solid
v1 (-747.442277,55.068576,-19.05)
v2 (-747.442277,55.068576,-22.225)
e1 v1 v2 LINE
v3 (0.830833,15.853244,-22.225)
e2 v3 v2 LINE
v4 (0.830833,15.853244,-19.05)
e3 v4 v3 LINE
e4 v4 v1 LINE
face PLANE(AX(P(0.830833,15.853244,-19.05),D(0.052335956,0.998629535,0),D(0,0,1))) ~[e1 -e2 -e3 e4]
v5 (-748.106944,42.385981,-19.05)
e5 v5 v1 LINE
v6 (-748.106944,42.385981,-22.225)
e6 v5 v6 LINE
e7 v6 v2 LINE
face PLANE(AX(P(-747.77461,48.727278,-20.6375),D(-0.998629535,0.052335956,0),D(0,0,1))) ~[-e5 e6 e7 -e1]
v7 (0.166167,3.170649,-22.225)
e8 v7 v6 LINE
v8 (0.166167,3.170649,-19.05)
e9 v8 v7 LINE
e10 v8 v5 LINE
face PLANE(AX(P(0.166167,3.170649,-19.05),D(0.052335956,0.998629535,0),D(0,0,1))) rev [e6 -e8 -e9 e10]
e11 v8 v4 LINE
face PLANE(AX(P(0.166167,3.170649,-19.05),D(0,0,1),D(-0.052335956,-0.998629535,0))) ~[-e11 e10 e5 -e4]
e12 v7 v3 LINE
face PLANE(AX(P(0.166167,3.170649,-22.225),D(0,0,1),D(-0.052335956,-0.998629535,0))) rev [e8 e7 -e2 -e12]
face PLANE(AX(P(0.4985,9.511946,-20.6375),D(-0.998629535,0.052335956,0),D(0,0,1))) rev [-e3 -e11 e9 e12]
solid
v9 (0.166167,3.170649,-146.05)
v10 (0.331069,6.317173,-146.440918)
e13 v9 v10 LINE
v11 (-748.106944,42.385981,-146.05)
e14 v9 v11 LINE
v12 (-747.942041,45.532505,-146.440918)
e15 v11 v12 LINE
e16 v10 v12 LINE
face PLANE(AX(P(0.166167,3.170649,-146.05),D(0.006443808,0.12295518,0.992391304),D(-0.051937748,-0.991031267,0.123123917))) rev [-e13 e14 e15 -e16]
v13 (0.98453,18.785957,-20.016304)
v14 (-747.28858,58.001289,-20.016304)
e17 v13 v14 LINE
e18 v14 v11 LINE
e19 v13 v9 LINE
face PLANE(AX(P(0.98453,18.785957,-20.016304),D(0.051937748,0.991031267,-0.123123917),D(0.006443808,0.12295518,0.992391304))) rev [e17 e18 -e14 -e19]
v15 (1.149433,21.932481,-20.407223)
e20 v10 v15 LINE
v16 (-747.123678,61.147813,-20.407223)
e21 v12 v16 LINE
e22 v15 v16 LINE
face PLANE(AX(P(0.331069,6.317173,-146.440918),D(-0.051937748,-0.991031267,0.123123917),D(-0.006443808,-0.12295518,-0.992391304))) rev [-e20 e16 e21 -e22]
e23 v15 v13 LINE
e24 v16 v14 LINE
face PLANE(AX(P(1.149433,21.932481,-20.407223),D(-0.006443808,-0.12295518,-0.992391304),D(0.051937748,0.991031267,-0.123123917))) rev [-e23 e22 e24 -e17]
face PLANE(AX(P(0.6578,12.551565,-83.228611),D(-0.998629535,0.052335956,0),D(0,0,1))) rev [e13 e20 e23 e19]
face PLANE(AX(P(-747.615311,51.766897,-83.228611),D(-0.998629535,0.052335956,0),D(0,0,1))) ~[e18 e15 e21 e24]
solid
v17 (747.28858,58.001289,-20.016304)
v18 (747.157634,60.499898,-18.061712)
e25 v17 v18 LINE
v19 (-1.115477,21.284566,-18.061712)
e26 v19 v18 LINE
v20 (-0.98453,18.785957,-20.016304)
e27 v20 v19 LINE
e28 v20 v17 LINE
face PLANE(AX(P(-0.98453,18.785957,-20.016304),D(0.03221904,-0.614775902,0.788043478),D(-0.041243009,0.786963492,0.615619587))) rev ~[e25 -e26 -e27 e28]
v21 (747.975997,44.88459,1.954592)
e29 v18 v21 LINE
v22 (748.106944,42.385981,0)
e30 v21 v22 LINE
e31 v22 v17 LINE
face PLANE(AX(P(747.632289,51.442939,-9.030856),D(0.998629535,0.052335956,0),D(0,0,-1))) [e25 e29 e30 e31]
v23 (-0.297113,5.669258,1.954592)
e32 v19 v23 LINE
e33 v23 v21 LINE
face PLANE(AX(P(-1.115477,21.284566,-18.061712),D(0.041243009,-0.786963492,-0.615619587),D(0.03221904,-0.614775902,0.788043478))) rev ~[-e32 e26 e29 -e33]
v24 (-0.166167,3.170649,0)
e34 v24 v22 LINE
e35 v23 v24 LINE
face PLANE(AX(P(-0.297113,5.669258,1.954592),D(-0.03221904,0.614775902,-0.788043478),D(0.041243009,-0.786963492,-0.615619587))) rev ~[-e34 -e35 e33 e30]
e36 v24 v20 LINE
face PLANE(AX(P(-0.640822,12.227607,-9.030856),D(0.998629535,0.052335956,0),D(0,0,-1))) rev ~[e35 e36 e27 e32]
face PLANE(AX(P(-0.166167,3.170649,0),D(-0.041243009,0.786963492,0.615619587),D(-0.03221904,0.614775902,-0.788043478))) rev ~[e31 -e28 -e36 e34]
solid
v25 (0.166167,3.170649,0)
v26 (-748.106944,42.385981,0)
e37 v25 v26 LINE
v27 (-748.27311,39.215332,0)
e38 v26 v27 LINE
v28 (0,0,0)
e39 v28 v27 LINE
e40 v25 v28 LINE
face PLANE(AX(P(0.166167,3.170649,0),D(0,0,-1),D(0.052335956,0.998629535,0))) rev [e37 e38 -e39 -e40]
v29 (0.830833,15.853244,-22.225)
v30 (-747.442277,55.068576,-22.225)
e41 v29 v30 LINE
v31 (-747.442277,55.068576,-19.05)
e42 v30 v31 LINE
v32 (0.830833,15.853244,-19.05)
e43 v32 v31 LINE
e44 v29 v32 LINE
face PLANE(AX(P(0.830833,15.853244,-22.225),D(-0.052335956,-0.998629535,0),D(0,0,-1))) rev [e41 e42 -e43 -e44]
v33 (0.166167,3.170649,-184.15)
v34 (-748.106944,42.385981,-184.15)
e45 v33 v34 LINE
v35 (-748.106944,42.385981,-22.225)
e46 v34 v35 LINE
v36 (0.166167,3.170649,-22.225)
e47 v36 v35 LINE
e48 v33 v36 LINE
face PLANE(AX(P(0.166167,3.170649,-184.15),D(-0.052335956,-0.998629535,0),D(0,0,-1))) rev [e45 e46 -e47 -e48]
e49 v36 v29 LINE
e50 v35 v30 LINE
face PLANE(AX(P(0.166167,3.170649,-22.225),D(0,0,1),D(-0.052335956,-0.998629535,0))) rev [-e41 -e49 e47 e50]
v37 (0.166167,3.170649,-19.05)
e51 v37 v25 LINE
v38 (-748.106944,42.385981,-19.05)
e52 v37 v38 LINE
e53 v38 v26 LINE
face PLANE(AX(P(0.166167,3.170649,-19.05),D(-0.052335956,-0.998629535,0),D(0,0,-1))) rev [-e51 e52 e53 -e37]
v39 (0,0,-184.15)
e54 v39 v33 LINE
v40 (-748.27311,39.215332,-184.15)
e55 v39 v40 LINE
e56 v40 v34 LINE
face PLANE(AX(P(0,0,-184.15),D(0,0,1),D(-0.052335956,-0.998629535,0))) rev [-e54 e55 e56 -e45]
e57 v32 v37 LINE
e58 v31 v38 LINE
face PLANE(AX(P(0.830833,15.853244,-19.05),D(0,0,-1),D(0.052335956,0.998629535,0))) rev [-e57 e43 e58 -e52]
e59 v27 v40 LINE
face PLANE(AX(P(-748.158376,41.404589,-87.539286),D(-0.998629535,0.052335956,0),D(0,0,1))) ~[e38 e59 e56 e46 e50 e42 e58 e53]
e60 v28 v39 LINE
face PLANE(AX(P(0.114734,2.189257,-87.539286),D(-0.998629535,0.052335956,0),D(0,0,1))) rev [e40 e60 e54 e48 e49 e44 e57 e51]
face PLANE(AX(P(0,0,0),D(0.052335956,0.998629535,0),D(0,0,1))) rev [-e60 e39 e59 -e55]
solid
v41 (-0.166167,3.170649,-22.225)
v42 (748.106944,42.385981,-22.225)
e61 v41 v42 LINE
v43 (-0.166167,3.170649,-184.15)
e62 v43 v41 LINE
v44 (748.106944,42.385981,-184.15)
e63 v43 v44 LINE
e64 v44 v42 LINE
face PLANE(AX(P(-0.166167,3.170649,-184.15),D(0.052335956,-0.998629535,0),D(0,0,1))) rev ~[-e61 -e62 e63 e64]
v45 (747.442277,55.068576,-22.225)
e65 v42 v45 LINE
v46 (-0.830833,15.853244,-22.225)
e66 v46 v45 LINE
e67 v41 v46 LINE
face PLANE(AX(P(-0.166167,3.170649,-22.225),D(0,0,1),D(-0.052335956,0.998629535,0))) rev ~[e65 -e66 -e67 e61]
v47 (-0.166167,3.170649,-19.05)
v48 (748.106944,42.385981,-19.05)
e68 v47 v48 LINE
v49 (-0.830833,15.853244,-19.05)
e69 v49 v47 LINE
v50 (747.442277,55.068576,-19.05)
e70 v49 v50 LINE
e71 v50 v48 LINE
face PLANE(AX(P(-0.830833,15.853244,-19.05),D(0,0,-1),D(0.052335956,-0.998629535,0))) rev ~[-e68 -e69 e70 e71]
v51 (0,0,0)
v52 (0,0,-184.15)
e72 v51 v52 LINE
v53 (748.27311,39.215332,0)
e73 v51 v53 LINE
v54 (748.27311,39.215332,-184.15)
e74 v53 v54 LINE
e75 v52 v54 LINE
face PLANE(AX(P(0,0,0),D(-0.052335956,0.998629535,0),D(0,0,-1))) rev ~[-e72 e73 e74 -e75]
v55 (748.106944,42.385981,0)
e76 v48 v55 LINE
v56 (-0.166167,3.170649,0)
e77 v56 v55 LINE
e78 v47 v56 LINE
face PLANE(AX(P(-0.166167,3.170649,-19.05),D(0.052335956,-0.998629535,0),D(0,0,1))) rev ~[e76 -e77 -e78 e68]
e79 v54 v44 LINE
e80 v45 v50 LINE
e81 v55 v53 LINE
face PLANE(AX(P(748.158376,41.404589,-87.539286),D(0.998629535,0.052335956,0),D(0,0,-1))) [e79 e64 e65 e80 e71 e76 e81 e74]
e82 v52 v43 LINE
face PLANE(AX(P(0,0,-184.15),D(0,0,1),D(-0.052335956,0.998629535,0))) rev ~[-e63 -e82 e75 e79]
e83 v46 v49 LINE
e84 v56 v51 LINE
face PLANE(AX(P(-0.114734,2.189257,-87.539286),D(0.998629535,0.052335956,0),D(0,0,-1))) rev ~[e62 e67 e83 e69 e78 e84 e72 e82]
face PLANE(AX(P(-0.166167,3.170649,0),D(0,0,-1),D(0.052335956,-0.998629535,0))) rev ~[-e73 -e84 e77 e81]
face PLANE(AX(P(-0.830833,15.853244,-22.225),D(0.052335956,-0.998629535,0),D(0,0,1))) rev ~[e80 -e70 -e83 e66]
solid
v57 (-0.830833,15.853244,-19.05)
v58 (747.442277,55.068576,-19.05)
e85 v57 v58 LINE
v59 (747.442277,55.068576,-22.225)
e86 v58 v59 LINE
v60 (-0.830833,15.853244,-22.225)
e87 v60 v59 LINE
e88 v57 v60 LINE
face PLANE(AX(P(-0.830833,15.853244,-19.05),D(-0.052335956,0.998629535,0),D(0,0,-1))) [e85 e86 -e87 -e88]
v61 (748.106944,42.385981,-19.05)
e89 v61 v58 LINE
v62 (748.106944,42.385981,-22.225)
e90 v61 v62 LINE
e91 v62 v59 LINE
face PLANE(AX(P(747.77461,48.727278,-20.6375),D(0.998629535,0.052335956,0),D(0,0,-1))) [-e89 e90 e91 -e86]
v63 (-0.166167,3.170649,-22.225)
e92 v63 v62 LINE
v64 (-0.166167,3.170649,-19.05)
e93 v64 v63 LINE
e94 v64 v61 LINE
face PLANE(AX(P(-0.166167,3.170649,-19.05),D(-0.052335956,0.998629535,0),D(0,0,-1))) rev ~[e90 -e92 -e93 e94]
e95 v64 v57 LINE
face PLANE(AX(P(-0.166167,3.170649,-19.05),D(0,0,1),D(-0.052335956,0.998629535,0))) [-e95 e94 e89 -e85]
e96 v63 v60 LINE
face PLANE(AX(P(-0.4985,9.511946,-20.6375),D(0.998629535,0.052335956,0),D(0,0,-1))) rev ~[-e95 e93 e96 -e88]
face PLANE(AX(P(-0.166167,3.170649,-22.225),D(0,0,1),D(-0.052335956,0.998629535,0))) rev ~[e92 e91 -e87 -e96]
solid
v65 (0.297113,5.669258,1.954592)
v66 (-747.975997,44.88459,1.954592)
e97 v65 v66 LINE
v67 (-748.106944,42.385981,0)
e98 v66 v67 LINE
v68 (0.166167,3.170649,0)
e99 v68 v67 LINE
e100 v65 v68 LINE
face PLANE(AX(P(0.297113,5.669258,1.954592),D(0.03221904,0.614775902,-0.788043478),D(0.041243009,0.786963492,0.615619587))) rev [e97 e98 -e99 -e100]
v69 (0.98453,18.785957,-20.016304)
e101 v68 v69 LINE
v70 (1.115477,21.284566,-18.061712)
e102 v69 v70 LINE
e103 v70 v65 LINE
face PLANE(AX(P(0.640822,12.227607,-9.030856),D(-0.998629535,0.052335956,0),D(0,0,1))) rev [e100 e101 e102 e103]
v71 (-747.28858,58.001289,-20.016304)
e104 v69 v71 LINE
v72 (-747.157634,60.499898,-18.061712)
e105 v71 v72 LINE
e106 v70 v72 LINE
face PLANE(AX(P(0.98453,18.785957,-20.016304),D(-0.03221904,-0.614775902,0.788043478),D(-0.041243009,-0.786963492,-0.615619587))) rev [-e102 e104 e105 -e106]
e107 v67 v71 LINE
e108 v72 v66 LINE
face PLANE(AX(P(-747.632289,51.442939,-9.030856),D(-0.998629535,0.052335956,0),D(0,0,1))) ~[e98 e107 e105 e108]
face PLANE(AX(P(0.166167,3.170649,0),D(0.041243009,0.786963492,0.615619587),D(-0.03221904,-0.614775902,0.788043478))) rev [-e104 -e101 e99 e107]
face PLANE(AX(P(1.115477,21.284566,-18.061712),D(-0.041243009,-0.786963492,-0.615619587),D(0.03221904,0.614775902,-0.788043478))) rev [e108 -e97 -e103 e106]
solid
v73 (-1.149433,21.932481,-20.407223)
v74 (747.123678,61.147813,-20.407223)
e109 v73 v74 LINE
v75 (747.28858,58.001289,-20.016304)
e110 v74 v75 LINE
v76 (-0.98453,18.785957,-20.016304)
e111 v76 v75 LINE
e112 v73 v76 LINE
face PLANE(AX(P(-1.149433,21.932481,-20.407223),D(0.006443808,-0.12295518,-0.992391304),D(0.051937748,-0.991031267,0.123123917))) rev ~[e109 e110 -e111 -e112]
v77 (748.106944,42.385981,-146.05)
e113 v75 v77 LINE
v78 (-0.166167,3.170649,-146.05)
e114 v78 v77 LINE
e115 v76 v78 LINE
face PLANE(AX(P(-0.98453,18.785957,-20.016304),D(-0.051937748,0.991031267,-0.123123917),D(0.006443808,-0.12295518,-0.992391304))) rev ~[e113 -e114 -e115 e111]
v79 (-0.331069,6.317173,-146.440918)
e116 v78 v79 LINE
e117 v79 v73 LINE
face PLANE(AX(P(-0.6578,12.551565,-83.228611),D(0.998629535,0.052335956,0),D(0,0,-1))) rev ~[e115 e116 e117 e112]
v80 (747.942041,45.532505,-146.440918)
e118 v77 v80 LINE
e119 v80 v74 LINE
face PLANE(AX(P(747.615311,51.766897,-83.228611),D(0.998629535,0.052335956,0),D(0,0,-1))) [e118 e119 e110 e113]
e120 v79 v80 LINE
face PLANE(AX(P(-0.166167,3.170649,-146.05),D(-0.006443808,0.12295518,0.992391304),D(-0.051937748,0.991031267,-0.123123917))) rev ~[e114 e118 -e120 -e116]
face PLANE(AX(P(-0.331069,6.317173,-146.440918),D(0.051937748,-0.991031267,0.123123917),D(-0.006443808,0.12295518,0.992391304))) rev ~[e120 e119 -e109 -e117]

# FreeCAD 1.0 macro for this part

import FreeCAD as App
import Part
import Sketcher

V = App.Vector
Q = App.Units.Quantity

doc = App.newDocument("Part")
body = doc.addObject("PartDesign::Body", "Body")

# Sketch on an angled plane
sketch1 = body.newObject("Sketcher::SketchObject", "Sketch")
sketch1.Placement = App.Placement(V(0, 0, 0), App.Rotation(V(0, 0, -1), V(-0.052335956, 0.998629535, 0), V(0.998629535, 0.052335956, 0), "ZXY"))
sketch1.addGeometry([
    Part.LineSegment(V(0, 3.2, 0), V(0, 0, 0)),  # 0
    Part.LineSegment(V(0, 0, 0), V(184.2, 0, 0)),  # 1
    Part.LineSegment(V(184.2, 0, 0), V(184.2, 3.2, 0)),  # 2
    Part.LineSegment(V(184.2, 3.2, 0), V(22.2, 3.2, 0)),  # 3
    Part.LineSegment(V(22.2, 3.2, 0), V(22.2, 15.9, 0)),  # 4
    Part.LineSegment(V(22.2, 15.9, 0), V(19.1, 15.9, 0)),  # 5
    Part.LineSegment(V(19.1, 15.9, 0), V(19.1, 3.2, 0)),  # 6
    Part.LineSegment(V(19.1, 3.2, 0), V(0, 3.2, 0)),  # 7
], False)
sketch1.addConstraint([
    Sketcher.Constraint("Coincident", 0, 2, 1, 1),
    Sketcher.Constraint("Coincident", 1, 2, 2, 1),
    Sketcher.Constraint("Coincident", 2, 2, 3, 1),
    Sketcher.Constraint("Coincident", 3, 2, 4, 1),
    Sketcher.Constraint("Coincident", 4, 2, 5, 1),
    Sketcher.Constraint("Coincident", 5, 2, 6, 1),
    Sketcher.Constraint("Coincident", 6, 2, 7, 1),
    Sketcher.Constraint("Coincident", 7, 2, 0, 1),
    Sketcher.Constraint("Vertical", 0),
    Sketcher.Constraint("Horizontal", 1),
    Sketcher.Constraint("Vertical", 2),
    Sketcher.Constraint("Horizontal", 3),
    Sketcher.Constraint("Vertical", 4),
    Sketcher.Constraint("Horizontal", 5),
    Sketcher.Constraint("Vertical", 6),
    Sketcher.Constraint("Horizontal", 7),
    Sketcher.Constraint("Coincident", 0, 2, -1, 1),
    Sketcher.Constraint("Horizontal", 3, 2, 6, 2),
    Sketcher.Constraint("Equal", 5, 0),
    Sketcher.Constraint("DistanceY", 4, 1, 4, 2, Q("0.5 in")),
    Sketcher.Constraint("DistanceX", 1, 1, 1, 2, Q("7.25 in")),
    Sketcher.Constraint("DistanceX", 7, 2, 7, 1, Q("0.75 in")),
    Sketcher.Constraint("DistanceX", 3, 2, 3, 1, Q("6.375 in")),
])
pad1 = body.newObject("PartDesign::Pad", "Pad")
pad1.Profile = sketch1
pad1.Length = Q("29.5 in")
body2 = doc.addObject("PartDesign::Body", "Body001")

# Sketch on an angled plane
sketch2 = body2.newObject("Sketcher::SketchObject", "Sketch001")
sketch2.Placement = App.Placement(V(0, 0, 0), App.Rotation(V(0, 0, -1), V(-0.052335956, 0.998629535, 0), V(0.998629535, 0.052335956, 0), "ZXY"))
sketch2.addGeometry([
    Part.LineSegment(V(-2, 5.7, 0), V(0, 3.2, 0)),
    Part.LineSegment(V(0, 3.2, 0), V(20, 18.8, 0)),
    Part.LineSegment(V(20, 18.8, 0), V(18.1, 21.3, 0)),
    Part.LineSegment(V(18.1, 21.3, 0), V(-2, 5.7, 0)),
], False)
sketch2.addConstraint([
    Sketcher.Constraint("Coincident", 0, 2, 1, 1),
    Sketcher.Constraint("Coincident", 1, 2, 2, 1),
    Sketcher.Constraint("Coincident", 2, 2, 3, 1),
    Sketcher.Constraint("Coincident", 3, 2, 0, 1),
    Sketcher.Constraint("PointOnObject", 0, 2, -2),
    Sketcher.Constraint("Perpendicular", 0, 1),
    Sketcher.Constraint("Perpendicular", 1, 2),
    Sketcher.Constraint("Perpendicular", 2, 3),
    Sketcher.Constraint("Distance", 1, Q("1 in")),
    Sketcher.Constraint("Distance", 0, Q("0.125 in")),
    Sketcher.Constraint("DistanceY", -1, 1, 0, 2, Q("0.125 in")),
    Sketcher.Constraint("DistanceY", 3, 2, 1, 2, Q("13.134699 mm")),
])
pad2 = body2.newObject("PartDesign::Pad", "Pad001")
pad2.Profile = sketch2
pad2.Length = Q("29.5 in")
body3 = doc.addObject("PartDesign::Body", "Body002")

# Sketch on an angled plane
sketch3 = body3.newObject("Sketcher::SketchObject", "Sketch002")
sketch3.Placement = App.Placement(V(0, 0, 0), App.Rotation(V(0, 0, -1), V(-0.052335956, 0.998629535, 0), V(0.998629535, 0.052335956, 0), "ZXY"))
sketch3.addGeometry([
    Part.LineSegment(V(20.4, 22, 0), V(20, 18.8, 0)),
    Part.LineSegment(V(20, 18.8, 0), V(146.1, 3.2, 0)),
    Part.LineSegment(V(146.1, 3.2, 0), V(146.4, 6.3, 0)),
    Part.LineSegment(V(146.4, 6.3, 0), V(20.4, 22, 0)),
], False)
sketch3.addConstraint([
    Sketcher.Constraint("Coincident", 0, 2, 1, 1),
    Sketcher.Constraint("Coincident", 1, 2, 2, 1),
    Sketcher.Constraint("Coincident", 2, 2, 3, 1),
    Sketcher.Constraint("Coincident", 3, 2, 0, 1),
    Sketcher.Constraint("Perpendicular", 0, 1),
    Sketcher.Constraint("Perpendicular", 1, 2),
    Sketcher.Constraint("Perpendicular", 2, 3),
    Sketcher.Constraint("Distance", 1, Q("5 in")),
    Sketcher.Constraint("DistanceX", -1, 1, 1, 2, Q("5.75 in")),
    Sketcher.Constraint("Distance", 0, Q("0.125 in")),
    Sketcher.Constraint("DistanceY", -1, 1, 1, 2, Q("0.125 in")),
    Sketcher.Constraint("DistanceX", -1, 1, 2, 2, Q("146.440918 mm")),
])
pad3 = body3.newObject("PartDesign::Pad", "Pad002")
pad3.Profile = sketch3
pad3.Length = Q("29.5 in")
body4 = doc.addObject("PartDesign::Body", "Body003")

# Sketch on an angled plane
sketch4 = body4.newObject("Sketcher::SketchObject", "Sketch003")
sketch4.Placement = App.Placement(V(0, 0, 0), App.Rotation(V(0, 0, -1), V(-0.052335956, 0.998629535, 0), V(0.998629535, 0.052335956, 0), "ZXY"))
sketch4.addGeometry([
    Part.LineSegment(V(19.1, 15.9, 0), V(19.1, 3.2, 0)),
    Part.LineSegment(V(19.1, 3.2, 0), V(22.2, 3.2, 0)),
    Part.LineSegment(V(22.2, 3.2, 0), V(22.2, 15.9, 0)),
    Part.LineSegment(V(22.2, 15.9, 0), V(19.1, 15.9, 0)),
], False)
sketch4.addConstraint([
    Sketcher.Constraint("Coincident", 0, 2, 1, 1),
    Sketcher.Constraint("Coincident", 1, 2, 2, 1),
    Sketcher.Constraint("Coincident", 2, 2, 3, 1),
    Sketcher.Constraint("Coincident", 3, 2, 0, 1),
    Sketcher.Constraint("Vertical", 0),
    Sketcher.Constraint("Horizontal", 1),
    Sketcher.Constraint("Vertical", 2),
    Sketcher.Constraint("Horizontal", 3),
    Sketcher.Constraint("DistanceY", 0, 2, 0, 1, Q("0.5 in")),
    Sketcher.Constraint("DistanceX", 1, 1, 1, 2, Q("0.125 in")),
    Sketcher.Constraint("DistanceX", -1, 1, 0, 2, Q("0.75 in")),
    Sketcher.Constraint("DistanceY", -1, 1, 0, 2, Q("0.125 in")),
])
pad4 = body4.newObject("PartDesign::Pad", "Pad003")
pad4.Profile = sketch4
pad4.Length = Q("29.5 in")
body5 = doc.addObject("PartDesign::Body", "Body004")
doc.recompute()

mirroring = doc.addObject("Part::Mirroring", "Mirroring")
mirroring.Source = body2
mirroring.Base = V(0, 0, 0)
mirroring.Normal = V(1, 0, 0)
body5.BaseFeature = mirroring
doc.recompute()
body6 = doc.addObject("PartDesign::Body", "Body005")
doc.recompute()

mirroring2 = doc.addObject("Part::Mirroring", "Mirroring001")
mirroring2.Source = body
mirroring2.Base = V(0, 0, 0)
mirroring2.Normal = V(1, 0, 0)
body6.BaseFeature = mirroring2
doc.recompute()
body7 = doc.addObject("PartDesign::Body", "Body006")
doc.recompute()

mirroring3 = doc.addObject("Part::Mirroring", "Mirroring002")
mirroring3.Source = body4
mirroring3.Base = V(0, 0, 0)
mirroring3.Normal = V(1, 0, 0)
body7.BaseFeature = mirroring3
doc.recompute()
body8 = doc.addObject("PartDesign::Body", "Body007")
doc.recompute()

mirroring4 = doc.addObject("Part::Mirroring", "Mirroring003")
mirroring4.Source = body3
mirroring4.Base = V(0, 0, 0)
mirroring4.Normal = V(1, 0, 0)
body8.BaseFeature = mirroring4
doc.recompute()
mirroring.Visibility = False
mirroring2.Visibility = False
mirroring3.Visibility = False
mirroring4.Visibility = False

doc.recompute()
